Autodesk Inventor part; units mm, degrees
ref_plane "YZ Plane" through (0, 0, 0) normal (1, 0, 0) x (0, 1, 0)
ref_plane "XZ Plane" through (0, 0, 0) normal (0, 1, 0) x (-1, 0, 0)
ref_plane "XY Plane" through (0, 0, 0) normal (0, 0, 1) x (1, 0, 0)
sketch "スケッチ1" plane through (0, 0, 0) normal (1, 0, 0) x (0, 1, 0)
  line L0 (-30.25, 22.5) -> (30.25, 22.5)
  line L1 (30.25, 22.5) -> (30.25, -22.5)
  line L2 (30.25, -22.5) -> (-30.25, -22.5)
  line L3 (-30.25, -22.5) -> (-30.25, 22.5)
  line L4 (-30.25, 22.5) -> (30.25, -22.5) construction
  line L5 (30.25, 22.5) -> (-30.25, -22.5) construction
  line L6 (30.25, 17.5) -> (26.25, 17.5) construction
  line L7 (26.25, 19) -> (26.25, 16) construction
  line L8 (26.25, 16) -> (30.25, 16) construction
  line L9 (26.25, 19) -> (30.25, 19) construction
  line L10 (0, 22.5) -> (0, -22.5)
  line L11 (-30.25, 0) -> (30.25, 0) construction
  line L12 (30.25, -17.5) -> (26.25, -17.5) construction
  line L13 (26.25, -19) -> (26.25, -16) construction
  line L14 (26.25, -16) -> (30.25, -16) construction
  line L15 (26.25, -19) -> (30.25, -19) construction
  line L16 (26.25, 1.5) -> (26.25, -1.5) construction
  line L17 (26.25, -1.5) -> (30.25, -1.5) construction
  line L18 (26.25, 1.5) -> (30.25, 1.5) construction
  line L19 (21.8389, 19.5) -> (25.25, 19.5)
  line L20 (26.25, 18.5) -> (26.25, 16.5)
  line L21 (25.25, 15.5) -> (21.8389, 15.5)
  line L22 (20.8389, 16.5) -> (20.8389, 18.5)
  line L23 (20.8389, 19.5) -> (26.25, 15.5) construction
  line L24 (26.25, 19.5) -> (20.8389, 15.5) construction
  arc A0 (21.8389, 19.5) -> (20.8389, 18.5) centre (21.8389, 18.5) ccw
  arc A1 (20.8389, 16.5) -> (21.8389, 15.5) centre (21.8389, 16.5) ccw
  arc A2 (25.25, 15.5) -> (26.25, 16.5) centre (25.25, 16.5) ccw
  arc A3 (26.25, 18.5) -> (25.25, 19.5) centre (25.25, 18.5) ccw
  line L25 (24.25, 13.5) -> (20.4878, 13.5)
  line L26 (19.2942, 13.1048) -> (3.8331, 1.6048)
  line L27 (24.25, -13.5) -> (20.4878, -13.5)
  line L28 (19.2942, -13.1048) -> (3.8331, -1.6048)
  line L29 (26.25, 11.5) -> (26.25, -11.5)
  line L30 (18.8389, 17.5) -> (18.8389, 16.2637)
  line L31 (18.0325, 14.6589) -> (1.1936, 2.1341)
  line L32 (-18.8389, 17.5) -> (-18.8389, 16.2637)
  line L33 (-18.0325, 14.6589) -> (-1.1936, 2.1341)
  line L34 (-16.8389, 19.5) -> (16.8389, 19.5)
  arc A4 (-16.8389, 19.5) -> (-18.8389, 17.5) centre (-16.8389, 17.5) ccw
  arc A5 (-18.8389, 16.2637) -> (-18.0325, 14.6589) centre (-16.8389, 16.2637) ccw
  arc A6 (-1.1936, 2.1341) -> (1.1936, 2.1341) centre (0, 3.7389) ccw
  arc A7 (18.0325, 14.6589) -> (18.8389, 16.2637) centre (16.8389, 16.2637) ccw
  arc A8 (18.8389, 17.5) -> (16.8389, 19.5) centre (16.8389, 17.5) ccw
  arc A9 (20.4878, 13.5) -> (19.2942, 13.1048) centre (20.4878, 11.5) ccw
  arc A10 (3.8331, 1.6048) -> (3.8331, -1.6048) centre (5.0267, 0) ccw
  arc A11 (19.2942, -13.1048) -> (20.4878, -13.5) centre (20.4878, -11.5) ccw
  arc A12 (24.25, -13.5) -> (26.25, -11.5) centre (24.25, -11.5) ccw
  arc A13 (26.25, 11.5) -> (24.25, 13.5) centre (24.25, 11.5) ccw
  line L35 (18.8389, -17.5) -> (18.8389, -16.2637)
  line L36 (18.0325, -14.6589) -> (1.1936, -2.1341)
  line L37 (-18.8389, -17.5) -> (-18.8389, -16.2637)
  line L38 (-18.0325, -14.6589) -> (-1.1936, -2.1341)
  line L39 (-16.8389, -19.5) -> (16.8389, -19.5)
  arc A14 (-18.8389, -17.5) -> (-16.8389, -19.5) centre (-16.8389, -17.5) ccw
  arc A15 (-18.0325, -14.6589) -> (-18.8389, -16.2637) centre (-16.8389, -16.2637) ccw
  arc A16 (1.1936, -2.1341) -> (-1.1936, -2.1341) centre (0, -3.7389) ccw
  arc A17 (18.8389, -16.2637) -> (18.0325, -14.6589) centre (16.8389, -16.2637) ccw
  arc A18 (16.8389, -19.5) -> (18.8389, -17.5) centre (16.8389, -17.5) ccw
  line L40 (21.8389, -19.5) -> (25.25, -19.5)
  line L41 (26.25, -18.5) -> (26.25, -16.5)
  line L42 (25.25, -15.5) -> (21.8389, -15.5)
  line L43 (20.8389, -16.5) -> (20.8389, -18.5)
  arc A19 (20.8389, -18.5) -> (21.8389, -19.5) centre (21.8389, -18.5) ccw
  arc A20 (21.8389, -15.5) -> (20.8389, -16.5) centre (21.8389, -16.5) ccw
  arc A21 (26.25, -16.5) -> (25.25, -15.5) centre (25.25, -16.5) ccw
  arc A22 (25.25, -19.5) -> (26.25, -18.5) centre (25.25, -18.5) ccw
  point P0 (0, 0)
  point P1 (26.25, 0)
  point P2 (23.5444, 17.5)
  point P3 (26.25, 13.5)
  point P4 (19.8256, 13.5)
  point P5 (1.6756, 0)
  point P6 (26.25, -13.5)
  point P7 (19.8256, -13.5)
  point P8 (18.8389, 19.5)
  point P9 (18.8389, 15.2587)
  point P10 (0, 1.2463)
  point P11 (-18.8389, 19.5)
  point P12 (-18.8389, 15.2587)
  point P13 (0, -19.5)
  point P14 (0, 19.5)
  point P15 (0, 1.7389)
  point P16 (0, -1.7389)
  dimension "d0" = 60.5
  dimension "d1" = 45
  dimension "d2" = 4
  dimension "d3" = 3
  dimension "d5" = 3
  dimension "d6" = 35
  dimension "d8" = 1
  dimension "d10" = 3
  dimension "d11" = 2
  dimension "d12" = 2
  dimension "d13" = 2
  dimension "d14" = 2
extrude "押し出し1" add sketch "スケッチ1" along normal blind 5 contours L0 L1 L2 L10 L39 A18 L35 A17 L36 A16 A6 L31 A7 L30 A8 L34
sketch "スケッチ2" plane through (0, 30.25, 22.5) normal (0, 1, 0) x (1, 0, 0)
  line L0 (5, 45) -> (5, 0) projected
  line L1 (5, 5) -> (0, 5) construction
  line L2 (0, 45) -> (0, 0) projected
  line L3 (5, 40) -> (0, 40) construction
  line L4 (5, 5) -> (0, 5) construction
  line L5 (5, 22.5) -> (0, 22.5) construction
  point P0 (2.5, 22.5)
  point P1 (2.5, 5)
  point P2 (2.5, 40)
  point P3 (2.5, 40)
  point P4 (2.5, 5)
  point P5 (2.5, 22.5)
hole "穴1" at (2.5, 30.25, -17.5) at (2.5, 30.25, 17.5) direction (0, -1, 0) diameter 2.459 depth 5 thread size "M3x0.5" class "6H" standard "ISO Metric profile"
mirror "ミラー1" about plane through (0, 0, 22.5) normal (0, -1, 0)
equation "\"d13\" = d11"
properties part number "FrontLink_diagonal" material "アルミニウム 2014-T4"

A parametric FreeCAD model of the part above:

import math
import FreeCAD as App
import Part
import Sketcher
Q = App.Units.Quantity

doc = App.newDocument("Part")
body = doc.addObject("PartDesign::Body", "Body")

sketch1 = body.newObject("Sketcher::SketchObject", "Sketch")
sketch1.AttachmentSupport = (doc.getObject("YZ_Plane"), [""])
sketch1.MapMode = "FlatFace"
sketch1.addGeometry([
    Part.LineSegment(App.Vector(30.25, 22.5, 0), App.Vector(0, 22.5, 0)),
    Part.LineSegment(App.Vector(0, 22.5, 0), App.Vector(0, 19.5, 0)),
    Part.LineSegment(App.Vector(0, 19.5, 0), App.Vector(16.8389, 19.5, 0)),
    Part.ArcOfCircle(Part.Circle(App.Vector(16.8389, 17.5, 0), App.Vector(0, 0, 1), 2), math.radians(0), math.radians(90)),
    Part.LineSegment(App.Vector(18.8389, 17.5, 0), App.Vector(18.8389, 16.2637, 0)),
    Part.ArcOfCircle(Part.Circle(App.Vector(16.8389, 16.2637, 0), App.Vector(0, 0, 1), 2.000016), math.radians(-53.359284), math.radians(0)),
    Part.LineSegment(App.Vector(18.0325, 14.6589, 0), App.Vector(1.1936, 2.1341, 0)),
    Part.ArcOfCircle(Part.Circle(App.Vector(0, 3.7389, 0), App.Vector(0, 0, 1), 2.000016), math.radians(-90), math.radians(-53.359284)),
    Part.LineSegment(App.Vector(0, 1.738884, 0), App.Vector(0, -1.738884, 0)),
    Part.ArcOfCircle(Part.Circle(App.Vector(0, -3.7389, 0), App.Vector(0, 0, 1), 2.000016), math.radians(53.359284), math.radians(90)),
    Part.LineSegment(App.Vector(1.1936, -2.1341, 0), App.Vector(18.0325, -14.6589, 0)),
    Part.ArcOfCircle(Part.Circle(App.Vector(16.8389, -16.2637, 0), App.Vector(0, 0, 1), 2), math.radians(0), math.radians(53.359284)),
    Part.LineSegment(App.Vector(18.8389, -16.2637, 0), App.Vector(18.8389, -17.5, 0)),
    Part.ArcOfCircle(Part.Circle(App.Vector(16.8389, -17.5, 0), App.Vector(0, 0, 1), 2), math.radians(-90), math.radians(0)),
    Part.LineSegment(App.Vector(16.8389, -19.5, 0), App.Vector(0, -19.5, 0)),
    Part.LineSegment(App.Vector(0, -19.5, 0), App.Vector(0, -22.5, 0)),
    Part.LineSegment(App.Vector(0, -22.5, 0), App.Vector(30.25, -22.5, 0)),
    Part.LineSegment(App.Vector(30.25, -22.5, 0), App.Vector(30.25, 22.5, 0)),
    Part.LineSegment(App.Vector(25.25, -19.5, 0), App.Vector(21.8389, -19.5, 0)),
    Part.ArcOfCircle(Part.Circle(App.Vector(21.8389, -18.5, 0), App.Vector(0, 0, 1), 1), math.radians(180), math.radians(270)),
    Part.LineSegment(App.Vector(20.8389, -18.5, 0), App.Vector(20.8389, -16.5, 0)),
    Part.ArcOfCircle(Part.Circle(App.Vector(21.8389, -16.5, 0), App.Vector(0, 0, 1), 1), math.radians(90), math.radians(180)),
    Part.LineSegment(App.Vector(21.8389, -15.5, 0), App.Vector(25.25, -15.5, 0)),
    Part.ArcOfCircle(Part.Circle(App.Vector(25.25, -16.5, 0), App.Vector(0, 0, 1), 1), math.radians(0), math.radians(90)),
    Part.LineSegment(App.Vector(26.25, -16.5, 0), App.Vector(26.25, -18.5, 0)),
    Part.ArcOfCircle(Part.Circle(App.Vector(25.25, -18.5, 0), App.Vector(0, 0, 1), 1), math.radians(-90), math.radians(0)),
    Part.LineSegment(App.Vector(20.4878, 13.5, 0), App.Vector(24.25, 13.5, 0)),
    Part.ArcOfCircle(Part.Circle(App.Vector(24.25, 11.5, 0), App.Vector(0, 0, 1), 2), math.radians(0), math.radians(90)),
    Part.LineSegment(App.Vector(26.25, 11.5, 0), App.Vector(26.25, -11.5, 0)),
    Part.ArcOfCircle(Part.Circle(App.Vector(24.25, -11.5, 0), App.Vector(0, 0, 1), 2), math.radians(-90), math.radians(0)),
    Part.LineSegment(App.Vector(24.25, -13.5, 0), App.Vector(20.4878, -13.5, 0)),
    Part.ArcOfCircle(Part.Circle(App.Vector(20.4878, -11.5, 0), App.Vector(0, 0, 1), 2.000016), math.radians(-126.640716), math.radians(-90)),
    Part.LineSegment(App.Vector(19.2942, -13.1048, 0), App.Vector(3.8331, -1.6048, 0)),
    Part.ArcOfCircle(Part.Circle(App.Vector(5.0267, 0, 0), App.Vector(0, 0, 1), 2.000016), math.radians(126.640716), math.radians(233.359284)),
    Part.LineSegment(App.Vector(3.8331, 1.6048, 0), App.Vector(19.2942, 13.1048, 0)),
    Part.ArcOfCircle(Part.Circle(App.Vector(20.4878, 11.5, 0), App.Vector(0, 0, 1), 2), math.radians(90), math.radians(126.640716)),
    Part.ArcOfCircle(Part.Circle(App.Vector(21.8389, 18.5, 0), App.Vector(0, 0, 1), 1), math.radians(90), math.radians(180)),
    Part.LineSegment(App.Vector(21.8389, 19.5, 0), App.Vector(25.25, 19.5, 0)),
    Part.ArcOfCircle(Part.Circle(App.Vector(25.25, 18.5, 0), App.Vector(0, 0, 1), 1), math.radians(0), math.radians(90)),
    Part.LineSegment(App.Vector(26.25, 18.5, 0), App.Vector(26.25, 16.5, 0)),
    Part.ArcOfCircle(Part.Circle(App.Vector(25.25, 16.5, 0), App.Vector(0, 0, 1), 1), math.radians(-90), math.radians(0)),
    Part.LineSegment(App.Vector(25.25, 15.5, 0), App.Vector(21.8389, 15.5, 0)),
    Part.ArcOfCircle(Part.Circle(App.Vector(21.8389, 16.5, 0), App.Vector(0, 0, 1), 1), math.radians(180), math.radians(270)),
    Part.LineSegment(App.Vector(20.8389, 16.5, 0), App.Vector(20.8389, 18.5, 0)),
], False)
sketch1.addConstraint([
    Sketcher.Constraint("Coincident", 0, 2, 1, 1),
    Sketcher.Constraint("Coincident", 1, 2, 2, 1),
    Sketcher.Constraint("Tangent", 2, 2, 3, 2),
    Sketcher.Constraint("Tangent", 3, 1, 4, 1),
    Sketcher.Constraint("Tangent", 4, 2, 5, 2),
    Sketcher.Constraint("Tangent", 5, 1, 6, 1),
    Sketcher.Constraint("Tangent", 6, 2, 7, 2),
    Sketcher.Constraint("Coincident", 7, 1, 8, 1),
    Sketcher.Constraint("Coincident", 8, 2, 9, 2),
    Sketcher.Constraint("Tangent", 9, 1, 10, 1),
    Sketcher.Constraint("Tangent", 10, 2, 11, 2),
    Sketcher.Constraint("Tangent", 11, 1, 12, 1),
    Sketcher.Constraint("Tangent", 12, 2, 13, 2),
    Sketcher.Constraint("Tangent", 13, 1, 14, 1),
    Sketcher.Constraint("Coincident", 14, 2, 15, 1),
    Sketcher.Constraint("Coincident", 15, 2, 16, 1),
    Sketcher.Constraint("Coincident", 16, 2, 17, 1),
    Sketcher.Constraint("Coincident", 17, 2, 0, 1),
    Sketcher.Constraint("Tangent", 18, 2, 19, 2),
    Sketcher.Constraint("Tangent", 19, 1, 20, 1),
    Sketcher.Constraint("Tangent", 20, 2, 21, 2),
    Sketcher.Constraint("Tangent", 21, 1, 22, 1),
    Sketcher.Constraint("Tangent", 22, 2, 23, 2),
    Sketcher.Constraint("Tangent", 23, 1, 24, 1),
    Sketcher.Constraint("Tangent", 24, 2, 25, 2),
    Sketcher.Constraint("Tangent", 25, 1, 18, 1),
    Sketcher.Constraint("Tangent", 26, 2, 27, 2),
    Sketcher.Constraint("Tangent", 27, 1, 28, 1),
    Sketcher.Constraint("Tangent", 28, 2, 29, 2),
    Sketcher.Constraint("Tangent", 29, 1, 30, 1),
    Sketcher.Constraint("Tangent", 30, 2, 31, 2),
    Sketcher.Constraint("Tangent", 31, 1, 32, 1),
    Sketcher.Constraint("Tangent", 32, 2, 33, 2),
    Sketcher.Constraint("Tangent", 33, 1, 34, 1),
    Sketcher.Constraint("Tangent", 34, 2, 35, 2),
    Sketcher.Constraint("Tangent", 35, 1, 26, 1),
    Sketcher.Constraint("Tangent", 36, 1, 37, 1),
    Sketcher.Constraint("Tangent", 37, 2, 38, 2),
    Sketcher.Constraint("Tangent", 38, 1, 39, 1),
    Sketcher.Constraint("Tangent", 39, 2, 40, 2),
    Sketcher.Constraint("Tangent", 40, 1, 41, 1),
    Sketcher.Constraint("Tangent", 41, 2, 42, 2),
    Sketcher.Constraint("Tangent", 42, 1, 43, 1),
    Sketcher.Constraint("Tangent", 43, 2, 36, 2),
    Sketcher.Constraint("Horizontal", 0),
    Sketcher.Constraint("Vertical", 1),
    Sketcher.Constraint("Horizontal", 2),
    Sketcher.Constraint("Vertical", 4),
    Sketcher.Constraint("Vertical", 8),
    Sketcher.Constraint("Vertical", 12),
    Sketcher.Constraint("Horizontal", 14),
    Sketcher.Constraint("Vertical", 15),
    Sketcher.Constraint("Horizontal", 16),
    Sketcher.Constraint("Vertical", 17),
    Sketcher.Constraint("Horizontal", 18),
    Sketcher.Constraint("Vertical", 20),
    Sketcher.Constraint("Horizontal", 22),
    Sketcher.Constraint("Vertical", 24),
    Sketcher.Constraint("Horizontal", 26),
    Sketcher.Constraint("Vertical", 28),
    Sketcher.Constraint("Horizontal", 30),
    Sketcher.Constraint("Horizontal", 37),
    Sketcher.Constraint("Vertical", 39),
    Sketcher.Constraint("Horizontal", 41),
    Sketcher.Constraint("Vertical", 43),
    Sketcher.Constraint("Equal", 3, 5),
    Sketcher.Constraint("Equal", 5, 7),
    Sketcher.Constraint("Equal", 7, 9),
    Sketcher.Constraint("Equal", 9, 11),
    Sketcher.Constraint("Equal", 11, 13),
    Sketcher.Constraint("Equal", 19, 21),
    Sketcher.Constraint("Equal", 21, 23),
    Sketcher.Constraint("Equal", 23, 25),
    Sketcher.Constraint("Equal", 13, 27),
    Sketcher.Constraint("Equal", 27, 29),
    Sketcher.Constraint("Equal", 29, 31),
    Sketcher.Constraint("Equal", 31, 33),
    Sketcher.Constraint("Equal", 33, 35),
    Sketcher.Constraint("Equal", 25, 36),
    Sketcher.Constraint("Equal", 36, 38),
    Sketcher.Constraint("Equal", 38, 40),
    Sketcher.Constraint("Equal", 40, 42),
    Sketcher.Constraint("Symmetric", 7, 3, 9, 3, -1, 1),
    Sketcher.Constraint("Symmetric", 1, 2, 14, 2, -1, 1),
    Sketcher.Constraint("Symmetric", 5, 3, 11, 3, -1),
    Sketcher.Constraint("Symmetric", 31, 3, 35, 3, -1),
    Sketcher.Constraint("Symmetric", 19, 3, 36, 3, -1),
    Sketcher.Constraint("Symmetric", 23, 3, 40, 3, -1),
    Sketcher.Constraint("Symmetric", 0, 2, 15, 2, -1),
    Sketcher.Constraint("PointOnObject", 7, 3, -2),
    Sketcher.Constraint("PointOnObject", 33, 3, -1),
    Sketcher.Constraint("PointOnObject", 7, 1, -2),
    Sketcher.Constraint("Parallel", 10, 32),
    Sketcher.Constraint("Horizontal", 14, 2, 18, 2),
    Sketcher.Constraint("Vertical", 24, 2, 27, 1),
    Sketcher.Constraint("Radius", 3, Q("2 mm")),
    Sketcher.Constraint("Radius", 19, Q("1 mm")),
    Sketcher.Constraint("DistanceY", 1, 2, 1, 1, Q("3 mm")),
    Sketcher.Constraint("DistanceY", 17, 1, 17, 2, Q("45 mm")),
    Sketcher.Constraint("DistanceY", 20, 1, 20, 2, Q("2 mm")),
    Sketcher.Constraint("DistanceY", 28, 2, 28, 1, Q("23 mm")),
    Sketcher.Constraint("DistanceX", 0, 2, 0, 1, Q("30.25 mm")),
    Sketcher.Constraint("DistanceX", 2, 1, 2, 2, Q("16.839 mm")),
    Sketcher.Constraint("DistanceX", 18, 2, 18, 1, Q("3.411 mm")),
    Sketcher.Constraint("DistanceX", -1, 1, 23, 3, Q("25.25 mm")),
    Sketcher.Constraint("Distance", 32, Q("19.269 mm")),
    Sketcher.Constraint("DistanceX", 26, 1, 26, 2, Q("3.7622 mm")),
    Sketcher.Constraint("DistanceY", 4, 2, 4, 1, Q("1.2363 mm")),
])
pad1 = body.newObject("PartDesign::Pad", "Pad")
pad1.Profile = sketch1
pad1.Length = 5

sketch2 = body.newObject("Sketcher::SketchObject", "Sketch001")
sketch2.AttachmentSupport = (doc.getObject("XZ_Plane"), [""])
sketch2.MapMode = "FlatFace"
sketch2.AttachmentOffset = App.Placement(App.Vector(0, 0, -30.25), App.Rotation())
sketch2.addGeometry([
    Part.Circle(App.Vector(2.5, -17.5, 0), App.Vector(0, 0, 1), 1.2295),
    Part.Circle(App.Vector(2.5, 17.5, 0), App.Vector(0, 0, 1), 1.2295),
], False)
sketch2.addConstraint([
    Sketcher.Constraint("Equal", 0, 1),
    Sketcher.Constraint("Symmetric", 0, 3, 1, 3, -1),
    Sketcher.Constraint("Diameter", 0, Q("2.459 mm")),
    Sketcher.Constraint("DistanceY", 0, 3, 1, 3, Q("35 mm")),
    Sketcher.Constraint("DistanceX", -1, 1, 0, 3, Q("2.5 mm")),
])
doc.recompute()
hole = body.newObject("PartDesign::Hole", "Hole")
hole.Profile = sketch2
hole.ThreadType = "None"
hole.Diameter = 2.459
hole.DepthType = "Dimension"
hole.Depth = 5
hole.DrillPoint = "Flat"
hole.Reversed = True
doc.recompute()

mirrored = body.newObject("PartDesign::Mirrored", "Mirrored")
mirrored.TransformMode = "Transform body"
mirrored.MirrorPlane = (doc.getObject("XZ_Plane"), [""])
body.Tip = mirrored

doc.recompute()
